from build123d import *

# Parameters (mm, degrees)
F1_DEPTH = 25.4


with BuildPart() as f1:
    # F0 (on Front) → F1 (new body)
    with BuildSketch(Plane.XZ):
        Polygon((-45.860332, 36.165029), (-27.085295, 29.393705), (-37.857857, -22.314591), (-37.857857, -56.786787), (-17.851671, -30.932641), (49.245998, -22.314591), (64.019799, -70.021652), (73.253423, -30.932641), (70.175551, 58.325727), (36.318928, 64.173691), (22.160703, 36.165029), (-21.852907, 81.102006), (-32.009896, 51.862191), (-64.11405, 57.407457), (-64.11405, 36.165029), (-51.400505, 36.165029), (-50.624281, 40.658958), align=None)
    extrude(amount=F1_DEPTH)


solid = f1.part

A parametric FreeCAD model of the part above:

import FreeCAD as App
import Part
import Sketcher

V = App.Vector
Q = App.Units.Quantity

doc = App.newDocument("Part")
body = doc.addObject("PartDesign::Body", "Body")

sketch1 = body.newObject("Sketcher::SketchObject", "Sketch")
sketch1.AttachmentSupport = (doc.getObject("XZ_Plane"), [""])
sketch1.MapMode = "FlatFace"
sketch1.addGeometry(Part.LineSegment(V(-45.9, 36.2, 0), V(-27.1, 29.4, 0)), False)
sketch1.addGeometry(Part.LineSegment(V(-27.1, 29.4, 0), V(-37.9, -22.3, 0)), False)
sketch1.addGeometry(Part.LineSegment(V(-37.9, -22.3, 0), V(-37.9, -56.8, 0)), False)
sketch1.addGeometry(Part.LineSegment(V(-37.9, -56.8, 0), V(-17.9, -30.9, 0)), False)
sketch1.addGeometry(Part.LineSegment(V(-17.9, -30.9, 0), V(49.2, -22.3, 0)), False)
sketch1.addGeometry(Part.LineSegment(V(49.2, -22.3, 0), V(64, -70, 0)), False)
sketch1.addGeometry(Part.LineSegment(V(64, -70, 0), V(73.3, -30.9, 0)), False)
sketch1.addGeometry(Part.LineSegment(V(73.3, -30.9, 0), V(70.2, 58.3, 0)), False)
sketch1.addGeometry(Part.LineSegment(V(70.2, 58.3, 0), V(36.3, 64.2, 0)), False)
sketch1.addGeometry(Part.LineSegment(V(36.3, 64.2, 0), V(22.2, 36.2, 0)), False)
sketch1.addGeometry(Part.LineSegment(V(22.2, 36.2, 0), V(-21.9, 81.1, 0)), False)
sketch1.addGeometry(Part.LineSegment(V(-21.9, 81.1, 0), V(-32, 51.9, 0)), False)
sketch1.addGeometry(Part.LineSegment(V(-32, 51.9, 0), V(-64.1, 57.4, 0)), False)
sketch1.addGeometry(Part.LineSegment(V(-64.1, 57.4, 0), V(-64.1, 36.2, 0)), False)
sketch1.addGeometry(Part.LineSegment(V(-64.1, 36.2, 0), V(-51.4, 36.2, 0)), False)
sketch1.addGeometry(Part.LineSegment(V(-51.4, 36.2, 0), V(-50.6, 40.7, 0)), False)
sketch1.addGeometry(Part.LineSegment(V(-50.6, 40.7, 0), V(-45.9, 36.2, 0)), False)
sketch1.addConstraint(Sketcher.Constraint("Coincident", 0, 2, 1, 1))
sketch1.addConstraint(Sketcher.Constraint("Coincident", 1, 2, 2, 1))
sketch1.addConstraint(Sketcher.Constraint("Coincident", 2, 2, 3, 1))
sketch1.addConstraint(Sketcher.Constraint("Coincident", 3, 2, 4, 1))
sketch1.addConstraint(Sketcher.Constraint("Coincident", 4, 2, 5, 1))
sketch1.addConstraint(Sketcher.Constraint("Coincident", 5, 2, 6, 1))
sketch1.addConstraint(Sketcher.Constraint("Coincident", 6, 2, 7, 1))
sketch1.addConstraint(Sketcher.Constraint("Coincident", 7, 2, 8, 1))
sketch1.addConstraint(Sketcher.Constraint("Coincident", 8, 2, 9, 1))
sketch1.addConstraint(Sketcher.Constraint("Coincident", 9, 2, 10, 1))
sketch1.addConstraint(Sketcher.Constraint("Coincident", 10, 2, 11, 1))
sketch1.addConstraint(Sketcher.Constraint("Coincident", 11, 2, 12, 1))
sketch1.addConstraint(Sketcher.Constraint("Coincident", 12, 2, 13, 1))
sketch1.addConstraint(Sketcher.Constraint("Coincident", 13, 2, 14, 1))
sketch1.addConstraint(Sketcher.Constraint("Coincident", 14, 2, 15, 1))
sketch1.addConstraint(Sketcher.Constraint("Coincident", 15, 2, 16, 1))
sketch1.addConstraint(Sketcher.Constraint("Coincident", 16, 2, 0, 1))
sketch1.addConstraint(Sketcher.Constraint("Vertical", 2))
sketch1.addConstraint(Sketcher.Constraint("Vertical", 13))
sketch1.addConstraint(Sketcher.Constraint("Horizontal", 14))
sketch1.addConstraint(Sketcher.Constraint("Parallel", 8, 12))
sketch1.addConstraint(Sketcher.Constraint("Perpendicular", 12, 15))
sketch1.addConstraint(Sketcher.Constraint("Horizontal", 1, 2, 4, 2))
sketch1.addConstraint(Sketcher.Constraint("Horizontal", 3, 2, 6, 2))
sketch1.addConstraint(Sketcher.Constraint("Horizontal", 9, 2, 13, 2))
sketch1.addConstraint(Sketcher.Constraint("Horizontal", 14, 2, 16, 2))
sketch1.addConstraint(Sketcher.Constraint("DistanceY", 13, 2, 13, 1, Q("21.242428 mm")))
sketch1.addConstraint(Sketcher.Constraint("DistanceX", -1, 1, 5, 2, Q("64.019799 mm")))
sketch1.addConstraint(Sketcher.Constraint("DistanceX", 4, 2, 5, 2, Q("14.773801 mm")))
sketch1.addConstraint(Sketcher.Constraint("DistanceX", 3, 2, 8, 2, Q("54.170599 mm")))
sketch1.addConstraint(Sketcher.Constraint("DistanceY", 9, 2, 7, 2, Q("22.160698 mm")))
sketch1.addConstraint(Sketcher.Constraint("DistanceY", 0, 2, 10, 2, Q("51.708301 mm")))
sketch1.addConstraint(Sketcher.Constraint("DistanceX", 11, 2, 0, 2, Q("4.924601 mm")))
sketch1.addConstraint(Sketcher.Constraint("DistanceX", 11, 2, 9, 2, Q("54.170599 mm")))
sketch1.addConstraint(Sketcher.Constraint("DistanceY", 11, 2, 8, 2, Q("12.3115 mm")))
sketch1.addConstraint(Sketcher.Constraint("DistanceX", 14, 2, 10, 2, Q("29.547598 mm")))
sketch1.addConstraint(Sketcher.Constraint("DistanceY", 15, 2, 12, 2, Q("16.748499 mm")))
sketch1.addConstraint(Sketcher.Constraint("Distance", 0, Q("19.958779 mm")))
sketch1.addConstraint(Sketcher.Constraint("Distance", 1, Q("52.818519 mm")))
sketch1.addConstraint(Sketcher.Constraint("Distance", 7, Q("89.311419 mm")))
sketch1.addConstraint(Sketcher.Constraint("Distance", 9, Q("31.383761 mm")))
sketch1.addConstraint(Sketcher.Constraint("DistanceX", 14, 1, 14, 2, Q("12.713545 mm")))
sketch1.addConstraint(Sketcher.Constraint("DistanceY", 2, 2, 2, 1, Q("34.472196 mm")))
sketch1.addConstraint(Sketcher.Constraint("DistanceY", 1, 2, -1, 1, Q("22.314591 mm")))
sketch1.addConstraint(Sketcher.Constraint("DistanceX", 3, 2, -1, 1, Q("17.851671 mm")))
sketch1.addConstraint(Sketcher.Constraint("DistanceY", 3, 2, -1, 1, Q("30.932641 mm")))
sketch1.addConstraint(Sketcher.Constraint("DistanceX", -1, 1, 7, 2, Q("70.175551 mm")))
sketch1.addConstraint(Sketcher.Constraint("DistanceY", -1, 1, 8, 2, Q("64.173691 mm")))
sketch1.addConstraint(Sketcher.Constraint("DistanceY", -1, 1, 9, 2, Q("36.165029 mm")))
sketch1.addConstraint(Sketcher.Constraint("DistanceY", 2, 2, 0, 2, Q("86.180492 mm")))
sketch1.addConstraint(Sketcher.Constraint("DistanceY", 5, 2, 4, 2, Q("47.707061 mm")))
pad1 = body.newObject("PartDesign::Pad", "Pad")
pad1.Profile = sketch1
pad1.Length = Q("1 in")

doc.recompute()
